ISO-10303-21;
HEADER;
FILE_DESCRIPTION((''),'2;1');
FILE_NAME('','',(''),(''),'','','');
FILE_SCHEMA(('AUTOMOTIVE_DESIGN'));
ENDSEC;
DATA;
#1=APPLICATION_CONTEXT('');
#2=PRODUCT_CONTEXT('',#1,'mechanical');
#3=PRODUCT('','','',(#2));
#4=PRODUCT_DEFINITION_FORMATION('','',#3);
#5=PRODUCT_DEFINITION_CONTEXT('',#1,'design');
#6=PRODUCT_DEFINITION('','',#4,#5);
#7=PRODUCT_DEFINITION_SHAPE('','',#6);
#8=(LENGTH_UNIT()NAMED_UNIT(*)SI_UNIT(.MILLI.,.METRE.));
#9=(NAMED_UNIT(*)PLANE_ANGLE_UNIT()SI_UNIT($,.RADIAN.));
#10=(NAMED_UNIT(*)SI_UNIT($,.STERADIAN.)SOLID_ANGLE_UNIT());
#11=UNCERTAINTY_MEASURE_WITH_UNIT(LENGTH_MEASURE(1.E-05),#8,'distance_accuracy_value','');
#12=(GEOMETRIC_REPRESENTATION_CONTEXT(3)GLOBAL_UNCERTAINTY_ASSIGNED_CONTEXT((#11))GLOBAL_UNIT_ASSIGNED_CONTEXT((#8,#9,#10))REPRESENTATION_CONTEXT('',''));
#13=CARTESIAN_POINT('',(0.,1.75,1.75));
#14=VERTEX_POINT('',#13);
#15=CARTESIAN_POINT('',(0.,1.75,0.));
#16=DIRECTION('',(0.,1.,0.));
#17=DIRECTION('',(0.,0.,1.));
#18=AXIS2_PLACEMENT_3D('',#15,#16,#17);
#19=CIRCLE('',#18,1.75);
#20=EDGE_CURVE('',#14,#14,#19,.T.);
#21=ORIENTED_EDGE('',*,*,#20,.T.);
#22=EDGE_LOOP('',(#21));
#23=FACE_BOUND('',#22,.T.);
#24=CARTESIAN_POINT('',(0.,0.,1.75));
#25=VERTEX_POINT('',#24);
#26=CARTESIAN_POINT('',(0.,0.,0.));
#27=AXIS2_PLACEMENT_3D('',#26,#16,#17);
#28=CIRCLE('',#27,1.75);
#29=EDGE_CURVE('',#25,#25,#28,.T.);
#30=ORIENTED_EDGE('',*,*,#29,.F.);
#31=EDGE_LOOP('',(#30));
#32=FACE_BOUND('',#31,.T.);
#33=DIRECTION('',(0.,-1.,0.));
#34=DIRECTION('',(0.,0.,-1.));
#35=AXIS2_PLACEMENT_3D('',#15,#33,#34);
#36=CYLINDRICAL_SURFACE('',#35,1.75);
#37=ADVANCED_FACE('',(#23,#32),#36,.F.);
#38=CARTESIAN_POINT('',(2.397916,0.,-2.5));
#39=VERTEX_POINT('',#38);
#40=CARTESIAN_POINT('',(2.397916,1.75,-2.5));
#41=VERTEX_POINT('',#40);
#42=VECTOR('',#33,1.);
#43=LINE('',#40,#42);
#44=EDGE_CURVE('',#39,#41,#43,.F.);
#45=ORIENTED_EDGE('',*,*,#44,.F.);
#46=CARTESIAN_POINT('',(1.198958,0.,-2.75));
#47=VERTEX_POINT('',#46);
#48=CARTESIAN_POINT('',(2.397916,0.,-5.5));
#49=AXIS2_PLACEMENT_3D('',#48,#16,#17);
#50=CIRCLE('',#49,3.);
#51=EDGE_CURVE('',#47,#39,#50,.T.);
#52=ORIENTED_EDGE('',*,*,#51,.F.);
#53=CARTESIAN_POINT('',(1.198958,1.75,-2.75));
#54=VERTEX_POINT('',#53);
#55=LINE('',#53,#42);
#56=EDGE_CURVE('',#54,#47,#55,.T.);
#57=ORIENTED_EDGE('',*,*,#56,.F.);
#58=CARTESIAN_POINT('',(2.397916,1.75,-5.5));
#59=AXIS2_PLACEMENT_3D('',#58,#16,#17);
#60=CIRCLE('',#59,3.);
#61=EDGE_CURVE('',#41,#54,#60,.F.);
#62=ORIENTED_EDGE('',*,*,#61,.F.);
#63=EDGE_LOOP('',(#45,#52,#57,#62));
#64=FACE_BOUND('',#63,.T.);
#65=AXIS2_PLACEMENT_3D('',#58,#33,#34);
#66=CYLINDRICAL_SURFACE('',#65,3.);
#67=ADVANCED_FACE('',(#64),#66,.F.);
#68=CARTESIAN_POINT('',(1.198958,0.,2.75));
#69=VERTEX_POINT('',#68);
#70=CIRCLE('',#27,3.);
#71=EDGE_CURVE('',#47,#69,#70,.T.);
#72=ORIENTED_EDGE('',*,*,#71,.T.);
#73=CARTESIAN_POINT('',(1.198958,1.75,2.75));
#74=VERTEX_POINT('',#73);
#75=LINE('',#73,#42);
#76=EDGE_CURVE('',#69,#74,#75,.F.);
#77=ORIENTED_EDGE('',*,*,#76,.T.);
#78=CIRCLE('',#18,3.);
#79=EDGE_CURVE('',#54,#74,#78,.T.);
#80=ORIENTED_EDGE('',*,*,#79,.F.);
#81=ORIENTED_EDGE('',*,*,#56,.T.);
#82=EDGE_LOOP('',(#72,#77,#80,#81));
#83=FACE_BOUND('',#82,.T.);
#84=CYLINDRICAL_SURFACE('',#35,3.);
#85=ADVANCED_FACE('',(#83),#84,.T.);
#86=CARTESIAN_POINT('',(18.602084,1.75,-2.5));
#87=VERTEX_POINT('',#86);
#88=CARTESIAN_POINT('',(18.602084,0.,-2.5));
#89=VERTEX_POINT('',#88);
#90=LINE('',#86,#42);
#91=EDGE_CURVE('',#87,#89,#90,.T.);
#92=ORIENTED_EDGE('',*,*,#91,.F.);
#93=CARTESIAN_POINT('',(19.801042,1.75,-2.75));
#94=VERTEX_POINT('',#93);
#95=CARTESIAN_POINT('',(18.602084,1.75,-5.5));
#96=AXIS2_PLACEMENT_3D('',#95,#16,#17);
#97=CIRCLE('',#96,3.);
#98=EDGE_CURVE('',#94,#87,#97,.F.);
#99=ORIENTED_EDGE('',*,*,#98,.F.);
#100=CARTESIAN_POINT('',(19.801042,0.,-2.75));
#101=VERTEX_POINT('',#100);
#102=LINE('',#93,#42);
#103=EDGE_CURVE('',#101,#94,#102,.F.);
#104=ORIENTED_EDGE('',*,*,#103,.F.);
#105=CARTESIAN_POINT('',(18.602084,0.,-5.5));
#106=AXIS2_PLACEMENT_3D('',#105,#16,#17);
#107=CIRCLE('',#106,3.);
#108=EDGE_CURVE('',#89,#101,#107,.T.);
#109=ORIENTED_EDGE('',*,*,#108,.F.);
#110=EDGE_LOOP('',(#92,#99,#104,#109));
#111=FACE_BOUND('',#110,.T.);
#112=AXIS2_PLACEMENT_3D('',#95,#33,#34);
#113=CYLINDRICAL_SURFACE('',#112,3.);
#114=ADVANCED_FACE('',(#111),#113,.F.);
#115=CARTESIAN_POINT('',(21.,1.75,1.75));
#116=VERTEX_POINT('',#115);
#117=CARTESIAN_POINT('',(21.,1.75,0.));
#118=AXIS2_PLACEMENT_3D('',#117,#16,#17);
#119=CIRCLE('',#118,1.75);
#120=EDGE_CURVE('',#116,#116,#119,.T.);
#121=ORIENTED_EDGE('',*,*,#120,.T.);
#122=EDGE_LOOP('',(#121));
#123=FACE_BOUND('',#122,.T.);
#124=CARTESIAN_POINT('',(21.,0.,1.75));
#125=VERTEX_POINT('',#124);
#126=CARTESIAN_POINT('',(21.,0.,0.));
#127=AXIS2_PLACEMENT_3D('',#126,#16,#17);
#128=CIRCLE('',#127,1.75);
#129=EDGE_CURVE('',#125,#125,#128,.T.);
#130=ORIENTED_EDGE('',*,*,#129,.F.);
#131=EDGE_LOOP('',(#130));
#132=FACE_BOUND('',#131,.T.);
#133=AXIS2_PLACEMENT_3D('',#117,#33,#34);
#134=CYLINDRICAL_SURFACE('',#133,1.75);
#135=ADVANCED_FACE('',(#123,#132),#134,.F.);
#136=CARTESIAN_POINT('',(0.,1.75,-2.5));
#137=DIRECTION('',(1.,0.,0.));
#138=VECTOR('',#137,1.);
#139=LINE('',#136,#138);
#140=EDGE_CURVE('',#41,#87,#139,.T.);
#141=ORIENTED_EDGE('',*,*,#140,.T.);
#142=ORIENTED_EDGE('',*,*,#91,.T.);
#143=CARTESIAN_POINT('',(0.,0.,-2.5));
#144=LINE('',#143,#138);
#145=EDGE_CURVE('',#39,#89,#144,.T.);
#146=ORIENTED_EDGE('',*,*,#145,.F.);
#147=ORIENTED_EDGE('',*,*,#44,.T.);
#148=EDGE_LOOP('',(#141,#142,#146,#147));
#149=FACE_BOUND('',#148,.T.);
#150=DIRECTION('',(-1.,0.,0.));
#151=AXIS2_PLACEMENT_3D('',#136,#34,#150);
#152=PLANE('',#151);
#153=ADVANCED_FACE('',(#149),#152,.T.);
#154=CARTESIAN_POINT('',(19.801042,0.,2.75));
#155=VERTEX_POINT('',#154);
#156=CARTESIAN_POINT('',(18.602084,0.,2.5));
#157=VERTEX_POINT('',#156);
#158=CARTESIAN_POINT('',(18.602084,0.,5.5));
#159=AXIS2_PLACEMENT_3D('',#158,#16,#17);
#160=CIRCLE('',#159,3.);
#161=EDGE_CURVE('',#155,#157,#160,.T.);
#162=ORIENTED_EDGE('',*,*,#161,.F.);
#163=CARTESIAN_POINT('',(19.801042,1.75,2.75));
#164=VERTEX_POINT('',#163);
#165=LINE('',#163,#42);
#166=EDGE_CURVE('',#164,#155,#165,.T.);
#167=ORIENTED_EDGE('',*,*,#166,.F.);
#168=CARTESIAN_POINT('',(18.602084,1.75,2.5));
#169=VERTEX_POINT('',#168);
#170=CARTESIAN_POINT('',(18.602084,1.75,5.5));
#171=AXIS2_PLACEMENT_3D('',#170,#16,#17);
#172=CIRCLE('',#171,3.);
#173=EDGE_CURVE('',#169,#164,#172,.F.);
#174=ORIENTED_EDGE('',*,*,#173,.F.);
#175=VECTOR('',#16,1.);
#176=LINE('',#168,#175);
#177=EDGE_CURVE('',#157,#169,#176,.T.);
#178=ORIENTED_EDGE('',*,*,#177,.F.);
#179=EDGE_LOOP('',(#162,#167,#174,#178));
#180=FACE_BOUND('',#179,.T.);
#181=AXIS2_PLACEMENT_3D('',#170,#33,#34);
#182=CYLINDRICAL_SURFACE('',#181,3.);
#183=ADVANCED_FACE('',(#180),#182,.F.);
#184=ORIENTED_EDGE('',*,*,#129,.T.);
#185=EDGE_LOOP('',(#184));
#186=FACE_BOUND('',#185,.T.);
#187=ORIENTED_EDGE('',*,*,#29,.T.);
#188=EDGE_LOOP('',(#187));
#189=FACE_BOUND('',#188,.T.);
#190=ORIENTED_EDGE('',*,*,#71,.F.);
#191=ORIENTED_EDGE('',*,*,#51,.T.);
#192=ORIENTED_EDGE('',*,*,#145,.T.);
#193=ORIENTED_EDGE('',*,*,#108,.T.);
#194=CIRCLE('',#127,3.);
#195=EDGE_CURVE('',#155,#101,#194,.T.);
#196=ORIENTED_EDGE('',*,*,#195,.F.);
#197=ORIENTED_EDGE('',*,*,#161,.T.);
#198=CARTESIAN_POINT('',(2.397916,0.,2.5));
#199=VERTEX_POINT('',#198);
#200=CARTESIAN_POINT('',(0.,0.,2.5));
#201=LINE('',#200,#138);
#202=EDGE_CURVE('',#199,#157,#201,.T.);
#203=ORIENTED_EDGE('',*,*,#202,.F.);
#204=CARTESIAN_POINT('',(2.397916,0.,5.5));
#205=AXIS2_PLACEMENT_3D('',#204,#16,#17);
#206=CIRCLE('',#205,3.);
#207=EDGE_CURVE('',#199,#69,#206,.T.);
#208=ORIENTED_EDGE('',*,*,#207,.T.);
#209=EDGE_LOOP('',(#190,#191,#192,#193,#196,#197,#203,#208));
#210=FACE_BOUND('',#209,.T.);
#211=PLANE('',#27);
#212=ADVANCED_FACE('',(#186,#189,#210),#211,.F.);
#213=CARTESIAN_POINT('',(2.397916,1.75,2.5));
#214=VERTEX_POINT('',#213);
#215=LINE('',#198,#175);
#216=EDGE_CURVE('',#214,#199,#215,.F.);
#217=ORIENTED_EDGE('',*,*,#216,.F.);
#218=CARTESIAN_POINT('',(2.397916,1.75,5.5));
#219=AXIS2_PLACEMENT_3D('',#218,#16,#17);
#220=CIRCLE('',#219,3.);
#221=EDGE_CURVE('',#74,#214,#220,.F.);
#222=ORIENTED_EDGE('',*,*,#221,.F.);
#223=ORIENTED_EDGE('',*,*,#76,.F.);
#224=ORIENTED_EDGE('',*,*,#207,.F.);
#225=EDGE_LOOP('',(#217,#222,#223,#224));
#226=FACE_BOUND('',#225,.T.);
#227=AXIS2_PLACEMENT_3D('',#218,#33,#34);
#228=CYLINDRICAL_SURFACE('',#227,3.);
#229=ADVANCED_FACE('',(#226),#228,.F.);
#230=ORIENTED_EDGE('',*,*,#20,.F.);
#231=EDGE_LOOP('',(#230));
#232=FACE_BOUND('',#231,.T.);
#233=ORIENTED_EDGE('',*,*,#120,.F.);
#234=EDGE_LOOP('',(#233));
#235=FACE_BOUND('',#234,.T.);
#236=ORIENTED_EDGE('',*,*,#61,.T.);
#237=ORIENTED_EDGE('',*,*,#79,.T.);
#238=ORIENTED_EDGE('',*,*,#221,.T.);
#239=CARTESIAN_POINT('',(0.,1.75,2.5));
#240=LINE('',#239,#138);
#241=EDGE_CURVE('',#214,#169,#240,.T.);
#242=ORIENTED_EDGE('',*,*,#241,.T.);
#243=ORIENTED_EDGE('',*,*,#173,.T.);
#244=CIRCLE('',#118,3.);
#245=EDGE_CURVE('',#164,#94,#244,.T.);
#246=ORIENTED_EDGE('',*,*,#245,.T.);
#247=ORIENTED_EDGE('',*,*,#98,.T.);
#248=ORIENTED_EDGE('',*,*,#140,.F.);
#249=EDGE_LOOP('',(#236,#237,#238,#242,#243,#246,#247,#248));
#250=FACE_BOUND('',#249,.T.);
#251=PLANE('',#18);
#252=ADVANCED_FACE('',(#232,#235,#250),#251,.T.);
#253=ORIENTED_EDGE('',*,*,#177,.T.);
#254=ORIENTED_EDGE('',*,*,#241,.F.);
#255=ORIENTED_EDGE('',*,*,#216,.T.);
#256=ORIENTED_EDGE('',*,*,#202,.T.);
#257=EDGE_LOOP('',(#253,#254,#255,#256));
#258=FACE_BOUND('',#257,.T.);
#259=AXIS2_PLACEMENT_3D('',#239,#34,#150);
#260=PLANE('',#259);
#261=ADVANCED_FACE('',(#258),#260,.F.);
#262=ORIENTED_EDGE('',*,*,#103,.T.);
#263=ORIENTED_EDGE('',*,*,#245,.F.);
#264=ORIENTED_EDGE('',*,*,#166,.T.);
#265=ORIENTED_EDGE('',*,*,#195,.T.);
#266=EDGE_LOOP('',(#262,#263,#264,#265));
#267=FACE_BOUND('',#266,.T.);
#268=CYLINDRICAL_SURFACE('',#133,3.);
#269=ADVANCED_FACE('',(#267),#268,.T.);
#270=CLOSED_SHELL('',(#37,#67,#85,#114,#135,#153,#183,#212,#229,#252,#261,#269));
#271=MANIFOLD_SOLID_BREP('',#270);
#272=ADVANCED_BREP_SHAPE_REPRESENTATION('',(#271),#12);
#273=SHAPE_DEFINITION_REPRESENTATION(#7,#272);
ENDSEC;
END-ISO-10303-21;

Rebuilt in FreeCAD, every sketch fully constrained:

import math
import FreeCAD as App
import Part
import Sketcher
from FreeCAD import Vector


def edges_at(feature, points):
    """Names of the edges that pass closest to the given points."""
    edges = feature.Shape.Edges
    near = lambda p: min(range(len(edges)), key=lambda i: edges[i].distToShape(Part.Vertex(*p))[0])
    return sorted({f"Edge{near(p) + 1}" for p in points})

doc = App.newDocument("Part")
params = doc.addObject("Spreadsheet::Sheet", "Params")
for row, (alias, value) in enumerate([
    ("sketch1_radius", "3 mm"),
    ("sketch1_diameter", "3.5 mm"),
    ("pad1_length", "1.75 mm"),
    ("fillet_radius", "3 mm"),
], start=1):
    params.set(f"A{row}", alias)
    params.set(f"B{row}", "=" + value)
    params.setAlias(f"B{row}", alias)

body = doc.addObject("PartDesign::Body", "Body")

# Sketch on XZ plane
sketch1 = body.newObject("Sketcher::SketchObject", "Sketch")
sketch1.AttachmentSupport = (doc.getObject("XZ_Plane"), [""])
sketch1.MapMode = "FlatFace"
sketch1.addGeometry([
    Part.ArcOfCircle(Part.Circle(Vector(0, 0, 0), Vector(0, 0, 1), 3), math.radians(56), math.radians(304)),  # 0
    Part.LineSegment(Vector(1.7, 2.5, 0), Vector(19.3, 2.5, 0)),  # 1
    Part.ArcOfCircle(Part.Circle(Vector(21, 0, 0), Vector(0, 0, 1), 3), math.radians(-124), math.radians(124)),  # 2
    Part.LineSegment(Vector(19.3, -2.5, 0), Vector(1.7, -2.5, 0)),  # 3
    Part.Circle(Vector(0, 0, 0), Vector(0, 0, 1), 1.8),  # 4
    Part.Circle(Vector(21, 0, 0), Vector(0, 0, 1), 1.8),  # 5
], False)
sketch1.addConstraint([
    Sketcher.Constraint("Coincident", 0, 1, 1, 1),
    Sketcher.Constraint("Coincident", 1, 2, 2, 2),
    Sketcher.Constraint("Coincident", 2, 1, 3, 1),
    Sketcher.Constraint("Coincident", 3, 2, 0, 2),
    Sketcher.Constraint("Horizontal", 1),
    Sketcher.Constraint("Horizontal", 3),
    Sketcher.Constraint("Coincident", 0, 3, -1, 1),
    Sketcher.Constraint("Coincident", 4, 3, -1, 1),
    Sketcher.Constraint("Coincident", 5, 3, 2, 3),
    Sketcher.Constraint("Equal", 0, 2),
    Sketcher.Constraint("Equal", 4, 5),
    Sketcher.Constraint("Symmetric", 1, 2, 2, 1, -1),
    Sketcher.Constraint("Radius", 0, 3.0),
    Sketcher.Constraint("Diameter", 4, 3.5),
    Sketcher.Constraint("DistanceX", -1, 1, 2, 3, 21.0),
    Sketcher.Constraint("DistanceY", 2, 1, 1, 2, 5.0),
])
sketch1.setExpression("Constraints[12]", "Params.sketch1_radius")
sketch1.setExpression("Constraints[13]", "Params.sketch1_diameter")
pad1 = body.newObject("PartDesign::Pad", "Pad")
pad1.Profile = sketch1
pad1.setExpression("Length", "Params.pad1_length")
pad1.Reversed = True
doc.recompute()

fillet = body.newObject("PartDesign::Fillet", "Fillet")
fillet.Base = (pad1, edges_at(pad1, [
    (19.342, 0.875, 2.5),
    (1.658, 0.875, 2.5),
    (1.658, 0.875, -2.5),
    (19.342, 0.875, -2.5),
]))
fillet.setExpression("Radius", "Params.fillet_radius")

doc.recompute()
